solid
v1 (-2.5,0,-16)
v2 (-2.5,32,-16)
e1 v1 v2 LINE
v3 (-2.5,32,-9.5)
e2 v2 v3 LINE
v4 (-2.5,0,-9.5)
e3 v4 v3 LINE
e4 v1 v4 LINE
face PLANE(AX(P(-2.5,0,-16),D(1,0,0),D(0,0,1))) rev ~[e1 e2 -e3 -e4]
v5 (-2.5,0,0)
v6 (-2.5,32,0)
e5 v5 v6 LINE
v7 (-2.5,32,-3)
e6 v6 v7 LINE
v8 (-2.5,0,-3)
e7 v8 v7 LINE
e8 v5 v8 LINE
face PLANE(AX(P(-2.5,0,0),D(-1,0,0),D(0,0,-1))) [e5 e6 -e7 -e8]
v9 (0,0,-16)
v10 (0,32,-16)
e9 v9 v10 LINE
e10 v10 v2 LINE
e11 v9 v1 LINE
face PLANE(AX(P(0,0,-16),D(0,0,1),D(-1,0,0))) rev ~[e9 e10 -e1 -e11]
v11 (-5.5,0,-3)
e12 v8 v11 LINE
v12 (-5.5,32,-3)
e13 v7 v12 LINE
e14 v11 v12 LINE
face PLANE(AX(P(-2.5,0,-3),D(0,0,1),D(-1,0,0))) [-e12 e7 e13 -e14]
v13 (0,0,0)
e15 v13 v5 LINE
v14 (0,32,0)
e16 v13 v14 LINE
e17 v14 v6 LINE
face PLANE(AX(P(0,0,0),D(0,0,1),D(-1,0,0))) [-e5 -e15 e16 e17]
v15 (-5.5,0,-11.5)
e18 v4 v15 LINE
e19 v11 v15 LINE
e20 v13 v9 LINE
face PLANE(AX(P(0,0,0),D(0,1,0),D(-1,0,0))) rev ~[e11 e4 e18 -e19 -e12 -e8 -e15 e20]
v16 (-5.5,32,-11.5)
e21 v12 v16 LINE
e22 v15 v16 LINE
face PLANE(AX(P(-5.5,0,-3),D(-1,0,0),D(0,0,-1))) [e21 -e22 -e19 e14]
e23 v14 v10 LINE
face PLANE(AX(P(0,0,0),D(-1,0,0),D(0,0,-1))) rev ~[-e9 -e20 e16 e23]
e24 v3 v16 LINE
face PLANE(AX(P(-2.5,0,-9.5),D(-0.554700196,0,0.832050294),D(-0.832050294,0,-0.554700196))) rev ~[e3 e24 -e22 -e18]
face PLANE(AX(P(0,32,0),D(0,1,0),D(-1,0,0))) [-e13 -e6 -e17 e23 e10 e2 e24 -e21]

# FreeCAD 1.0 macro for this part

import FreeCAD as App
import Part
import Sketcher

V = App.Vector
Q = App.Units.Quantity


def add_polygon(sketch, points):
    """Adds a closed chain of lines whose ends are joined by coincident constraints."""
    first, n = sketch.GeometryCount, len(points)
    for a, b in zip(points, points[1:] + points[:1]):
        sketch.addGeometry(Part.LineSegment(App.Vector(*a, 0), App.Vector(*b, 0)), False)
    for i in range(n):
        sketch.addConstraint(Sketcher.Constraint("Coincident", first + i, 2, first + (i + 1) % n, 1))

doc = App.newDocument("Part")
body = doc.addObject("PartDesign::Body", "Body")

# Sketch on XZ plane
sketch1 = body.newObject("Sketcher::SketchObject", "Sketch")
sketch1.AttachmentSupport = (doc.getObject("XZ_Plane"), [""])
sketch1.MapMode = "FlatFace"
add_polygon(sketch1, [(-2.5, 0), (0, 0), (0, -16), (-2.5, -16), (-2.5, -9.5), (-5.5, -11.5), (-5.5, -3), (-2.5, -3)])  # lines 0-7
sketch1.addConstraint(Sketcher.Constraint("Horizontal", 0))
sketch1.addConstraint(Sketcher.Constraint("Vertical", 1))
sketch1.addConstraint(Sketcher.Constraint("Horizontal", 2))
sketch1.addConstraint(Sketcher.Constraint("Vertical", 3))
sketch1.addConstraint(Sketcher.Constraint("Vertical", 5))
sketch1.addConstraint(Sketcher.Constraint("Horizontal", 6))
sketch1.addConstraint(Sketcher.Constraint("Vertical", 7))
sketch1.addConstraint(Sketcher.Constraint("Coincident", 0, 2, -1, 1))
sketch1.addConstraint(Sketcher.Constraint("Vertical", 3, 2, 6, 2))
sketch1.addConstraint(Sketcher.Constraint("Equal", 6, 7))
sketch1.addConstraint(Sketcher.Constraint("DistanceX", 6, 1, 6, 2, Q("3 mm")))
sketch1.addConstraint(Sketcher.Constraint("DistanceY", 1, 2, 1, 1, Q("16 mm")))
sketch1.addConstraint(Sketcher.Constraint("DistanceX", 0, 1, 0, 2, Q("2.5 mm")))
sketch1.addConstraint(Sketcher.Constraint("DistanceY", 3, 1, 3, 2, Q("6.5 mm")))
sketch1.addConstraint(Sketcher.Constraint("DistanceY", 5, 1, 5, 2, Q("8.5 mm")))
pad1 = body.newObject("PartDesign::Pad", "Pad")
pad1.Profile = sketch1
pad1.Length = 32
pad1.Reversed = True

doc.recompute()
